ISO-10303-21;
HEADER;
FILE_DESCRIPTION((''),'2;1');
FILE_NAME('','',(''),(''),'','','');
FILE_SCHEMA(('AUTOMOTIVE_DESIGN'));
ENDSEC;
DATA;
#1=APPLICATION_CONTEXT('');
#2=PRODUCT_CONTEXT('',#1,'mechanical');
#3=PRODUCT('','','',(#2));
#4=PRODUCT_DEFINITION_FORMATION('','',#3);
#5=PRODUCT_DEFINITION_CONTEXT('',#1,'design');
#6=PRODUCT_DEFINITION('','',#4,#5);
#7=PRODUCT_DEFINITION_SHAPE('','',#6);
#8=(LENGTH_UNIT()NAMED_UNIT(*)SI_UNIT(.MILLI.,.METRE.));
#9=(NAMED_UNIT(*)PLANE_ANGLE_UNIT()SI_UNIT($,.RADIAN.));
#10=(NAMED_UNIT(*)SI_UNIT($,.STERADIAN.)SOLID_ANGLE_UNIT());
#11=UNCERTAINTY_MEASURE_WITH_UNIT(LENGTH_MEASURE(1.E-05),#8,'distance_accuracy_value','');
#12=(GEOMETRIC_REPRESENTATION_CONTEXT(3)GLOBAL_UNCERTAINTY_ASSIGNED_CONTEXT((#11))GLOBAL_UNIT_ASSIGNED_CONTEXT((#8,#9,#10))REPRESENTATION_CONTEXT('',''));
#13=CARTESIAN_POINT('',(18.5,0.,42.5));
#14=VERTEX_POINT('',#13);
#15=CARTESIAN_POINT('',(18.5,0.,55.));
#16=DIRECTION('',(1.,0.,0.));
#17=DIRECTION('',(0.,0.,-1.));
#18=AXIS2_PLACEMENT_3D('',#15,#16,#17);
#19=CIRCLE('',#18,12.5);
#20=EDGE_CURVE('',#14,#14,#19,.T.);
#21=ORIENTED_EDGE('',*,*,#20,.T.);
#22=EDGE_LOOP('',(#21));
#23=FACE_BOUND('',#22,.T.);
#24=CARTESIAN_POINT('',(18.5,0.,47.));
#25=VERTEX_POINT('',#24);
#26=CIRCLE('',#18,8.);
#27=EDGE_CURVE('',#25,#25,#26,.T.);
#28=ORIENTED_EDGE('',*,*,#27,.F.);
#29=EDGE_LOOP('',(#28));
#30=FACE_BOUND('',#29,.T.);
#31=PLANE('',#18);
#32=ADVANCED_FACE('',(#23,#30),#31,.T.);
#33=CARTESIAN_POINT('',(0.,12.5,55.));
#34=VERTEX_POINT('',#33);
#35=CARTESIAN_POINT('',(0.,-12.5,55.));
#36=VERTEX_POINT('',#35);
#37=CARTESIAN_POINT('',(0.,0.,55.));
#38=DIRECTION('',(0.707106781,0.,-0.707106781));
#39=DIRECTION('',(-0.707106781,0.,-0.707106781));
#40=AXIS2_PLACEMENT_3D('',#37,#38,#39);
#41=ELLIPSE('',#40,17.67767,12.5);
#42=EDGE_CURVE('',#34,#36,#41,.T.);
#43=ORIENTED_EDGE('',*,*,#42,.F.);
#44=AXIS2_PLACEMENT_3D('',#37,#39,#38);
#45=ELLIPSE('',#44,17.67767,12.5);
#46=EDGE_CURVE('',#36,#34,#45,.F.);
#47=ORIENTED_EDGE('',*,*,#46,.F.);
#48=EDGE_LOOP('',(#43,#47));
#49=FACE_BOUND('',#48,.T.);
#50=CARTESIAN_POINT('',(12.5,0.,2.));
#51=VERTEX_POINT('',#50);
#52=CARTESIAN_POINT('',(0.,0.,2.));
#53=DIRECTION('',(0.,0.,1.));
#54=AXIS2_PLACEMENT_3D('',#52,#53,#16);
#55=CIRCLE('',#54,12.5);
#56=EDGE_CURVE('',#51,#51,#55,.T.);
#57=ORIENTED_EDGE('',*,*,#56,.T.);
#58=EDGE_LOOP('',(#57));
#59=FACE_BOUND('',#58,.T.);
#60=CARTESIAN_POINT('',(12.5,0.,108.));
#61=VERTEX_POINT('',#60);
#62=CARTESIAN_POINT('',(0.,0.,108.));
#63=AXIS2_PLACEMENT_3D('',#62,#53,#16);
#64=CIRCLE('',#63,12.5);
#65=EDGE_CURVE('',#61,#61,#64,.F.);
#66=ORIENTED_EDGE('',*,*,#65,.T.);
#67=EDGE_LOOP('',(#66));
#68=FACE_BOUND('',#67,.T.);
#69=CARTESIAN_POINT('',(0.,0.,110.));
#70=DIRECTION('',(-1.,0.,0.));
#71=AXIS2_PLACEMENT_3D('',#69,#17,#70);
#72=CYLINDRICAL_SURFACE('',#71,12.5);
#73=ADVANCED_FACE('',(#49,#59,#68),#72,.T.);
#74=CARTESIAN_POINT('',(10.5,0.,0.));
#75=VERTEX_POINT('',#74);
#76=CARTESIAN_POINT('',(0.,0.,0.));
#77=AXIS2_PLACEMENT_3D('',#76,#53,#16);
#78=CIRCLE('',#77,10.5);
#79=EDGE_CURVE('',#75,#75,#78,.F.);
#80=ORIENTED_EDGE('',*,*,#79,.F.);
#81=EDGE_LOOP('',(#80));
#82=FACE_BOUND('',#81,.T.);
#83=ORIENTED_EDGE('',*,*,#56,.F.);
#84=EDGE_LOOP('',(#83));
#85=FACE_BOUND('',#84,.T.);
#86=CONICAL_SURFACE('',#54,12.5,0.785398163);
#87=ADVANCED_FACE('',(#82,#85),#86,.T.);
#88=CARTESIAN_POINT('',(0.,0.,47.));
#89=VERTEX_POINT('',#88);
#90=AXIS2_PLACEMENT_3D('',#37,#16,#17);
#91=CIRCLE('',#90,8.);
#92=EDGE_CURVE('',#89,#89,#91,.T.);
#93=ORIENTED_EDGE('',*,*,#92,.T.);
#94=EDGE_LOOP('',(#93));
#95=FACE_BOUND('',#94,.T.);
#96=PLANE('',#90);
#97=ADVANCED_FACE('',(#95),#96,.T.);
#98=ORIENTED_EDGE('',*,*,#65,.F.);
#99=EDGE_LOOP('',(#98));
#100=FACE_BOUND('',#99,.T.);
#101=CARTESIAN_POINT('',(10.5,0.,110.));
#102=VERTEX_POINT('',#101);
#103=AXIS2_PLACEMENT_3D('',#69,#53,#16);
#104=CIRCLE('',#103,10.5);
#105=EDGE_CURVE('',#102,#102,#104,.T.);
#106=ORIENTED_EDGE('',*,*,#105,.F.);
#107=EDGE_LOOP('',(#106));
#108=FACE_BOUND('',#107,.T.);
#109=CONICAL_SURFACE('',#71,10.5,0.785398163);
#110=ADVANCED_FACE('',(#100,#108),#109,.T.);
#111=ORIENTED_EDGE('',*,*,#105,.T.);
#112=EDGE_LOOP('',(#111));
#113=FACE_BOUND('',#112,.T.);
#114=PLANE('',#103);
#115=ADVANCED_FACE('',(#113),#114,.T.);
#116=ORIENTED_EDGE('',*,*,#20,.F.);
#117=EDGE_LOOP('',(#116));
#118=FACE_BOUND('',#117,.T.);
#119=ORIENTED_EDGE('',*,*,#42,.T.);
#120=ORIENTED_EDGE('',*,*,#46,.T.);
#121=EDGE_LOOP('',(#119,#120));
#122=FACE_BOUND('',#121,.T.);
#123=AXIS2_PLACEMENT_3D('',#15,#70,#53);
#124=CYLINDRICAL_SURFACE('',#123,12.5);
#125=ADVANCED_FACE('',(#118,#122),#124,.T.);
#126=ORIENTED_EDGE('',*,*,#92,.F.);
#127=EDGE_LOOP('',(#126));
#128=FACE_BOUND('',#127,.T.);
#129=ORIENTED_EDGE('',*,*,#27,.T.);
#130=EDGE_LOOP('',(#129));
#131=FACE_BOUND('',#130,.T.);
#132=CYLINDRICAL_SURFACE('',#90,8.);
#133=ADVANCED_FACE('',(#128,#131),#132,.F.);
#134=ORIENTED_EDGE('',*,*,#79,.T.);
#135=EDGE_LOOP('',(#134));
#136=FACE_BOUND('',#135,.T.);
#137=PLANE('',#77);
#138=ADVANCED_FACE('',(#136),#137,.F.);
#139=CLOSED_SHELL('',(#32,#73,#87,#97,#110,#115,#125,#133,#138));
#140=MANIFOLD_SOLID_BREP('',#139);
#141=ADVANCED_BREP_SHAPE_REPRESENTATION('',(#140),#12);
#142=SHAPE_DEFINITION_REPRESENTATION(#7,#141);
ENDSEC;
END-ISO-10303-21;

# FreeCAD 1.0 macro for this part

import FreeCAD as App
import Part
import Sketcher
from FreeCAD import Vector


def edges_at(feature, points):
    """Names of the edges that pass closest to the given points."""
    edges = feature.Shape.Edges
    near = lambda p: min(range(len(edges)), key=lambda i: edges[i].distToShape(Part.Vertex(*p))[0])
    return sorted({f"Edge{near(p) + 1}" for p in points})

doc = App.newDocument("Part")
body = doc.addObject("PartDesign::Body", "Body")

# Sketch on XY plane
sketch1 = body.newObject("Sketcher::SketchObject", "Sketch")
sketch1.AttachmentSupport = (doc.getObject("XY_Plane"), [""])
sketch1.MapMode = "FlatFace"
sketch1.addGeometry(Part.Circle(Vector(0, 0, 0), Vector(0, 0, 1), 12), False)
sketch1.addConstraint(Sketcher.Constraint("Coincident", 0, 3, -1, 1))
sketch1.addConstraint(Sketcher.Constraint("Diameter", 0, 25.0))
pad1 = body.newObject("PartDesign::Pad", "Pad")
pad1.Profile = sketch1
pad1.Length = 110

# Sketch on YZ plane
sketch2 = body.newObject("Sketcher::SketchObject", "Sketch001")
sketch2.AttachmentSupport = (doc.getObject("YZ_Plane"), [""])
sketch2.MapMode = "FlatFace"
sketch2.addGeometry(Part.Circle(Vector(0, 55, 0), Vector(0, 0, 1), 12), False)
sketch2.addConstraint(Sketcher.Constraint("PointOnObject", 0, 3, -2))
sketch2.addConstraint(Sketcher.Constraint("Diameter", 0, 25.0))
sketch2.addConstraint(Sketcher.Constraint("DistanceY", -1, 1, 0, 3, 55.0))
pad2 = body.newObject("PartDesign::Pad", "Pad001")
pad2.Profile = sketch2
pad2.Length = 18.5
doc.recompute()

chamfer = body.newObject("PartDesign::Chamfer", "Chamfer")
chamfer.Base = (pad2, edges_at(pad2, [(-12.5, 0, 0), (-12.5, 0, 110)]))
chamfer.Size = 2

# Sketch on YZ plane
sketch3 = body.newObject("Sketcher::SketchObject", "Sketch002")
sketch3.AttachmentSupport = (doc.getObject("YZ_Plane"), [""])
sketch3.MapMode = "FlatFace"
sketch3.AttachmentOffset = App.Placement(Vector(0, 0, 18.5), App.Rotation())
sketch3.addGeometry(Part.Circle(Vector(0, 55, 0), Vector(0, 0, 1), 8), False)
sketch3.addConstraint(Sketcher.Constraint("PointOnObject", 0, 3, -2))
sketch3.addConstraint(Sketcher.Constraint("Diameter", 0, 16.0))
sketch3.addConstraint(Sketcher.Constraint("DistanceY", -1, 1, 0, 3, 55.0))
pocket1 = body.newObject("PartDesign::Pocket", "Pocket")
pocket1.Profile = sketch3
pocket1.Length = 18.5

doc.recompute()
